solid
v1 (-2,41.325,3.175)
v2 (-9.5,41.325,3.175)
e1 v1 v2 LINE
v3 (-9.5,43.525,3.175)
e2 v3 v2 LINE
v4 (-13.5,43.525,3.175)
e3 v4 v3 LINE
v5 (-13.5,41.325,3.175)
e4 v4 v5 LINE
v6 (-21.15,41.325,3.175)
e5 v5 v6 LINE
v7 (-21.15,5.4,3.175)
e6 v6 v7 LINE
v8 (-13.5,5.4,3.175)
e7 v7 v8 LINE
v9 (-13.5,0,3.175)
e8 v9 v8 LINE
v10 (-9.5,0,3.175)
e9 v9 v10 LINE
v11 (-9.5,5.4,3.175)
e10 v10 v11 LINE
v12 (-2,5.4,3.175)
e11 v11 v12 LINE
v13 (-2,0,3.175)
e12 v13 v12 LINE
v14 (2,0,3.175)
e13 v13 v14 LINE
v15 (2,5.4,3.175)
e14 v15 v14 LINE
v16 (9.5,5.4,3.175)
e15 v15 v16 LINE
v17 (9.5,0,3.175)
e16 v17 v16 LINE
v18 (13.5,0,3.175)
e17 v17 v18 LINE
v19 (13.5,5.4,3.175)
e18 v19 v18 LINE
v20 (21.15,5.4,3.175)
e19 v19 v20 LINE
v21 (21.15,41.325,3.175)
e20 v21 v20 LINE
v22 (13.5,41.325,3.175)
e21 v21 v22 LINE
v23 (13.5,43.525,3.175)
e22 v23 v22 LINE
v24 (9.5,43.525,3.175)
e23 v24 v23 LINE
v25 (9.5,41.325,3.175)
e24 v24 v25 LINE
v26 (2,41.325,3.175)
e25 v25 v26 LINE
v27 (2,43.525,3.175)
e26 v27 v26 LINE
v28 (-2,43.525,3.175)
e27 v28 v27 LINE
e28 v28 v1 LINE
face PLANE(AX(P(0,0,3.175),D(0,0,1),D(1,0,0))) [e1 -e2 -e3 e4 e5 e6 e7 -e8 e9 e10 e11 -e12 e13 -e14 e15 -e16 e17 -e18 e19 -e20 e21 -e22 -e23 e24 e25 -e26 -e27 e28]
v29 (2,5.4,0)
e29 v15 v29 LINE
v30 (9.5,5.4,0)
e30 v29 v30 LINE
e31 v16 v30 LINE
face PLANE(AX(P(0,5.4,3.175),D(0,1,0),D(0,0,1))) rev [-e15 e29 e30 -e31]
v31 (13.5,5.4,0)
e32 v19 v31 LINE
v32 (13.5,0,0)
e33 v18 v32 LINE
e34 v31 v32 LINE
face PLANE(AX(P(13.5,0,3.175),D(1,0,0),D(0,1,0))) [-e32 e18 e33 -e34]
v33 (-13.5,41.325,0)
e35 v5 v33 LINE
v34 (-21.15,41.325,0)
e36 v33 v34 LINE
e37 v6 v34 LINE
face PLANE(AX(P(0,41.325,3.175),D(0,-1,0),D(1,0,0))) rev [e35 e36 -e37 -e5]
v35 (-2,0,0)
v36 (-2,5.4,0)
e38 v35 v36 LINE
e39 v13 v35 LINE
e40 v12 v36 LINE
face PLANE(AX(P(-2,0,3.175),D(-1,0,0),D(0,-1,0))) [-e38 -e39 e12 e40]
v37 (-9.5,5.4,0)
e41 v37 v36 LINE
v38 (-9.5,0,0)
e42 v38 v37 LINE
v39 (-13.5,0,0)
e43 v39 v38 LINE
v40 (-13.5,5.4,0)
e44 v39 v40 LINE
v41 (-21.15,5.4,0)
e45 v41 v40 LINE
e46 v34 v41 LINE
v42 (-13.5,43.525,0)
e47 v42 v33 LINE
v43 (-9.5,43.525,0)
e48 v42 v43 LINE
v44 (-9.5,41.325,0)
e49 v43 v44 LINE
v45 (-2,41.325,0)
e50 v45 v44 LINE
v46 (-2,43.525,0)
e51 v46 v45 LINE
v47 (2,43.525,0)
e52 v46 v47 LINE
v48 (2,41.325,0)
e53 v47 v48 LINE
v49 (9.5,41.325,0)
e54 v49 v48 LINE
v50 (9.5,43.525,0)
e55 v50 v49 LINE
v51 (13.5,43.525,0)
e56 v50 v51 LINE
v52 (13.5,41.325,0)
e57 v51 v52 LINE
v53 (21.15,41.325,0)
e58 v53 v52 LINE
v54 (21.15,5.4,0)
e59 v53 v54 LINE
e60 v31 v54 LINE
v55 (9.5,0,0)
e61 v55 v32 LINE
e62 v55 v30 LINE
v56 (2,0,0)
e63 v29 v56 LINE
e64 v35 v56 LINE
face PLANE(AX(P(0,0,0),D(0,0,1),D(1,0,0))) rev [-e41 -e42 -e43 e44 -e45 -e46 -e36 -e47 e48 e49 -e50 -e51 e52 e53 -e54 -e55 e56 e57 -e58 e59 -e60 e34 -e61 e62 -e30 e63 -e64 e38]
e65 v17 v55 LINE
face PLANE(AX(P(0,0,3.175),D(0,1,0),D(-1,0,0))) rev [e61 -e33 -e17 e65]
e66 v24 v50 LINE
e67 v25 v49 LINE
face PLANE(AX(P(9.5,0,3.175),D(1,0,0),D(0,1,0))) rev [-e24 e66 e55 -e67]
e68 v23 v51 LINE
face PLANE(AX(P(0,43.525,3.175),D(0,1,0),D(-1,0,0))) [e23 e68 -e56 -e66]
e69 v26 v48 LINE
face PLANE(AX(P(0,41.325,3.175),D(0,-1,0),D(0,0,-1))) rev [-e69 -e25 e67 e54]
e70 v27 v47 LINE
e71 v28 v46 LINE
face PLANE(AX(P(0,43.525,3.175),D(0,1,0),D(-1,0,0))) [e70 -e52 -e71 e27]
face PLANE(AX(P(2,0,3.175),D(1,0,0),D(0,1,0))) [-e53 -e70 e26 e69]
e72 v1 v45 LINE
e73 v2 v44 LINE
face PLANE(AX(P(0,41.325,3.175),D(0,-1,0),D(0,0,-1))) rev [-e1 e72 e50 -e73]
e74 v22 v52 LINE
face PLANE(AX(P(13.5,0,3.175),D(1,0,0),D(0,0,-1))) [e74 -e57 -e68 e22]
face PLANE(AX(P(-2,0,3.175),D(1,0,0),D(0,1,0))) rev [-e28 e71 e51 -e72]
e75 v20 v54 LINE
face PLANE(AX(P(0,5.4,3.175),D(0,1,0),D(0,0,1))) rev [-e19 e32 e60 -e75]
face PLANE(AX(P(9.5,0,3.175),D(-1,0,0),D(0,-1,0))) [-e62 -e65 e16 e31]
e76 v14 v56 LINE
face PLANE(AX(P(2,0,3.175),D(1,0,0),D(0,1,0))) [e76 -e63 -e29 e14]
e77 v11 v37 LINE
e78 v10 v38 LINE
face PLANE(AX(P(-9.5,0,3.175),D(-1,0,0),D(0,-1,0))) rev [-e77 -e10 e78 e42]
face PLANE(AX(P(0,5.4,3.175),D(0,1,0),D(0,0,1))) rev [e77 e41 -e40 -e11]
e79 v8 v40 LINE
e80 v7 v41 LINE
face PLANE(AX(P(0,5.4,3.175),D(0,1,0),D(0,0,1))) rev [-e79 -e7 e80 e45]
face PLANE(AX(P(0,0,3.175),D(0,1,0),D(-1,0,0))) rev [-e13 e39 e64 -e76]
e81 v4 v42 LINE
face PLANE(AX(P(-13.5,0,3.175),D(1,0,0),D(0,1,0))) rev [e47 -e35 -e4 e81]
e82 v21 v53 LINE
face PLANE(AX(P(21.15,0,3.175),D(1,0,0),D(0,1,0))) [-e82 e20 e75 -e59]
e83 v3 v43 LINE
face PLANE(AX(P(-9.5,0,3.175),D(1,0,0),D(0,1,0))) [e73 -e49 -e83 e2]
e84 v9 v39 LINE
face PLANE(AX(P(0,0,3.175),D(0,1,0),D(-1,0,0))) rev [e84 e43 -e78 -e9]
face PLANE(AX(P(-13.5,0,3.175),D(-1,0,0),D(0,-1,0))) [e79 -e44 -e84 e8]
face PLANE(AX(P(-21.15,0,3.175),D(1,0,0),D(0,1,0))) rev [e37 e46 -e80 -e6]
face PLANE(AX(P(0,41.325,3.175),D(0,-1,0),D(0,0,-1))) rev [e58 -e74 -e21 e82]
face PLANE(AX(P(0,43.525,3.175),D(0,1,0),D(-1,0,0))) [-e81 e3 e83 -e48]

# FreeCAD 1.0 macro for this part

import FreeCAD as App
import Part
import Sketcher
from FreeCAD import Vector

doc = App.newDocument("Part")
body = doc.addObject("PartDesign::Body", "Body")

# Sketch on XY plane
sketch1 = doc.addObject("Sketcher::SketchObject", "Sketch")
body.addObject(sketch1)
sketch1.AttachmentSupport = (doc.XY_Plane, [""])
sketch1.MapMode = "FlatFace"
sketch1.addGeometry([
    Part.LineSegment(Vector(-9.5, 43.5, 0), Vector(-13.5, 43.5, 0)),  # 0
    Part.LineSegment(Vector(-13.5, 43.5, 0), Vector(-13.5, 41.3, 0)),  # 1
    Part.LineSegment(Vector(-13.5, 41.3, 0), Vector(-21.1, 41.3, 0)),  # 2
    Part.LineSegment(Vector(-21.1, 41.3, 0), Vector(-21.1, 5.4, 0)),  # 3
    Part.LineSegment(Vector(-21.1, 5.4, 0), Vector(-13.5, 5.4, 0)),  # 4
    Part.LineSegment(Vector(-13.5, 5.4, 0), Vector(-13.5, 0, 0)),  # 5
    Part.LineSegment(Vector(-13.5, 0, 0), Vector(-9.5, 0, 0)),  # 6
    Part.LineSegment(Vector(-9.5, 0, 0), Vector(-9.5, 5.4, 0)),  # 7
    Part.LineSegment(Vector(-9.5, 5.4, 0), Vector(-2, 5.4, 0)),  # 8
    Part.LineSegment(Vector(-2, 5.4, 0), Vector(-2, 0, 0)),  # 9
    Part.LineSegment(Vector(-2, 0, 0), Vector(2, 0, 0)),  # 10
    Part.LineSegment(Vector(2, 0, 0), Vector(2, 5.4, 0)),  # 11
    Part.LineSegment(Vector(2, 5.4, 0), Vector(9.5, 5.4, 0)),  # 12
    Part.LineSegment(Vector(9.5, 5.4, 0), Vector(9.5, 0, 0)),  # 13
    Part.LineSegment(Vector(9.5, 0, 0), Vector(13.5, 0, 0)),  # 14
    Part.LineSegment(Vector(13.5, 0, 0), Vector(13.5, 5.4, 0)),  # 15
    Part.LineSegment(Vector(13.5, 5.4, 0), Vector(21.1, 5.4, 0)),  # 16
    Part.LineSegment(Vector(21.1, 5.4, 0), Vector(21.1, 41.3, 0)),  # 17
    Part.LineSegment(Vector(21.1, 41.3, 0), Vector(13.5, 41.3, 0)),  # 18
    Part.LineSegment(Vector(13.5, 41.3, 0), Vector(13.5, 43.5, 0)),  # 19
    Part.LineSegment(Vector(13.5, 43.5, 0), Vector(9.5, 43.5, 0)),  # 20
    Part.LineSegment(Vector(9.5, 43.5, 0), Vector(9.5, 41.3, 0)),  # 21
    Part.LineSegment(Vector(9.5, 41.3, 0), Vector(2, 41.3, 0)),  # 22
    Part.LineSegment(Vector(2, 41.3, 0), Vector(2, 43.5, 0)),  # 23
    Part.LineSegment(Vector(2, 43.5, 0), Vector(-2, 43.5, 0)),  # 24
    Part.LineSegment(Vector(-2, 43.5, 0), Vector(-2, 41.3, 0)),  # 25
    Part.LineSegment(Vector(-2, 41.3, 0), Vector(-9.5, 41.3, 0)),  # 26
    Part.LineSegment(Vector(-9.5, 41.3, 0), Vector(-9.5, 43.5, 0)),  # 27
], False)
sketch1.addConstraint([
    Sketcher.Constraint("Coincident", 0, 2, 1, 1),
    Sketcher.Constraint("Coincident", 1, 2, 2, 1),
    Sketcher.Constraint("Coincident", 2, 2, 3, 1),
    Sketcher.Constraint("Coincident", 3, 2, 4, 1),
    Sketcher.Constraint("Coincident", 4, 2, 5, 1),
    Sketcher.Constraint("Coincident", 5, 2, 6, 1),
    Sketcher.Constraint("Coincident", 6, 2, 7, 1),
    Sketcher.Constraint("Coincident", 7, 2, 8, 1),
    Sketcher.Constraint("Coincident", 8, 2, 9, 1),
    Sketcher.Constraint("Coincident", 9, 2, 10, 1),
    Sketcher.Constraint("Coincident", 10, 2, 11, 1),
    Sketcher.Constraint("Coincident", 11, 2, 12, 1),
    Sketcher.Constraint("Coincident", 12, 2, 13, 1),
    Sketcher.Constraint("Coincident", 13, 2, 14, 1),
    Sketcher.Constraint("Coincident", 14, 2, 15, 1),
    Sketcher.Constraint("Coincident", 15, 2, 16, 1),
    Sketcher.Constraint("Coincident", 16, 2, 17, 1),
    Sketcher.Constraint("Coincident", 17, 2, 18, 1),
    Sketcher.Constraint("Coincident", 18, 2, 19, 1),
    Sketcher.Constraint("Coincident", 19, 2, 20, 1),
    Sketcher.Constraint("Coincident", 20, 2, 21, 1),
    Sketcher.Constraint("Coincident", 21, 2, 22, 1),
    Sketcher.Constraint("Coincident", 22, 2, 23, 1),
    Sketcher.Constraint("Coincident", 23, 2, 24, 1),
    Sketcher.Constraint("Coincident", 24, 2, 25, 1),
    Sketcher.Constraint("Coincident", 25, 2, 26, 1),
    Sketcher.Constraint("Coincident", 26, 2, 27, 1),
    Sketcher.Constraint("Coincident", 27, 2, 0, 1),
    Sketcher.Constraint("Horizontal", 0),
    Sketcher.Constraint("Vertical", 1),
    Sketcher.Constraint("Horizontal", 2),
    Sketcher.Constraint("Vertical", 3),
    Sketcher.Constraint("Horizontal", 4),
    Sketcher.Constraint("Vertical", 5),
    Sketcher.Constraint("Horizontal", 6),
    Sketcher.Constraint("Vertical", 7),
    Sketcher.Constraint("Horizontal", 8),
    Sketcher.Constraint("Vertical", 9),
    Sketcher.Constraint("Horizontal", 10),
    Sketcher.Constraint("Vertical", 11),
    Sketcher.Constraint("Horizontal", 12),
    Sketcher.Constraint("Vertical", 13),
    Sketcher.Constraint("Horizontal", 14),
    Sketcher.Constraint("Vertical", 15),
    Sketcher.Constraint("Horizontal", 16),
    Sketcher.Constraint("Vertical", 17),
    Sketcher.Constraint("Horizontal", 18),
    Sketcher.Constraint("Vertical", 19),
    Sketcher.Constraint("Horizontal", 20),
    Sketcher.Constraint("Vertical", 21),
    Sketcher.Constraint("Horizontal", 22),
    Sketcher.Constraint("Vertical", 23),
    Sketcher.Constraint("Horizontal", 24),
    Sketcher.Constraint("Vertical", 25),
    Sketcher.Constraint("Horizontal", 26),
    Sketcher.Constraint("Vertical", 27),
    Sketcher.Constraint("Symmetric", 9, 2, 10, 2, -1, 1),
    Sketcher.Constraint("Symmetric", 6, 2, 13, 2, -1, 1),
    Sketcher.Constraint("Symmetric", 5, 2, 14, 2, -2),
    Sketcher.Constraint("Symmetric", 3, 2, 16, 2, -2),
    Sketcher.Constraint("Symmetric", 1, 2, 18, 2, -2),
    Sketcher.Constraint("Symmetric", 22, 2, 25, 2, -2),
    Sketcher.Constraint("Symmetric", 20, 2, 27, 2, -2),
    Sketcher.Constraint("Horizontal", 4, 2, 7, 2),
    Sketcher.Constraint("Horizontal", 8, 2, 11, 2),
    Sketcher.Constraint("Horizontal", 18, 2, 21, 2),
    Sketcher.Constraint("Horizontal", 20, 2, 23, 2),
    Sketcher.Constraint("Vertical", 1, 2, 4, 2),
    Sketcher.Constraint("Vertical", 13, 2, 20, 2),
    Sketcher.Constraint("Vertical", 11, 2, 22, 2),
    Sketcher.Constraint("Equal", 6, 10),
    Sketcher.Constraint("DistanceX", 0, 2, 0, 1, 4.0),
    Sketcher.Constraint("DistanceX", 8, 1, 8, 2, 7.5),
    Sketcher.Constraint("DistanceY", 1, 2, 1, 1, 2.2),
    Sketcher.Constraint("DistanceY", 5, 2, 5, 1, 5.4),
    Sketcher.Constraint("DistanceX", 2, 2, 2, 1, 7.65),
    Sketcher.Constraint("DistanceY", 3, 2, 3, 1, 35.925),
])
pad1 = doc.addObject("PartDesign::Pad", "Pad")
body.addObject(pad1)
pad1.Profile = sketch1
pad1.Length = 3.175

doc.recompute()
